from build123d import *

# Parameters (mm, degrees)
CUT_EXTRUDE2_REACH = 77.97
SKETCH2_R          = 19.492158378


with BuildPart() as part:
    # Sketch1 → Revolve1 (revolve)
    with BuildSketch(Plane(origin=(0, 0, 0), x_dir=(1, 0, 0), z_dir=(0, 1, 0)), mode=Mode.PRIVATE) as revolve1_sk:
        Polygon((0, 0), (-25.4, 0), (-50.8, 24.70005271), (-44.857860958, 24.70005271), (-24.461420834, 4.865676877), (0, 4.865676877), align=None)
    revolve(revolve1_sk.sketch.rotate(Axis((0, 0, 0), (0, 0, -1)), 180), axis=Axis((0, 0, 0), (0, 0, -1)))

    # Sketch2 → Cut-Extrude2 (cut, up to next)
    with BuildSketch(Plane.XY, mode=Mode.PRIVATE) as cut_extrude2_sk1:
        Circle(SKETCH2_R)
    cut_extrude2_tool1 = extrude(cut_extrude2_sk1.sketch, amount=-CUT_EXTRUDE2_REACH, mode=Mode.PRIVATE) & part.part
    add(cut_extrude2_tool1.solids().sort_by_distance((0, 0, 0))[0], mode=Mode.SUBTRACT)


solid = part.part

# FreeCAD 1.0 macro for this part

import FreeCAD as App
import Part
import Sketcher
from FreeCAD import Vector
Q = App.Units.Quantity

doc = App.newDocument("Part")
body = doc.addObject("PartDesign::Body", "Body")

# Sketch on XZ plane
sketch1 = body.newObject("Sketcher::SketchObject", "Sketch")
sketch1.AttachmentSupport = (doc.getObject("XZ_Plane"), [""])
sketch1.MapMode = "FlatFace"
sketch1.addGeometry([
    Part.LineSegment(Vector(-25.4, 0, 0), Vector(0, 0, 0)),  # 0
    Part.LineSegment(Vector(0, 0, 0), Vector(0, -4.9, 0)),  # 1
    Part.LineSegment(Vector(0, -4.9, 0), Vector(-24.5, -4.9, 0)),  # 2
    Part.LineSegment(Vector(-24.5, -4.9, 0), Vector(-44.9, -24.7, 0)),  # 3
    Part.LineSegment(Vector(-44.9, -24.7, 0), Vector(-50.8, -24.7, 0)),  # 4
    Part.LineSegment(Vector(-50.8, -24.7, 0), Vector(-25.4, 0, 0)),  # 5
], False)
sketch1.addConstraint([
    Sketcher.Constraint("Coincident", 0, 2, 1, 1),
    Sketcher.Constraint("Coincident", 1, 2, 2, 1),
    Sketcher.Constraint("Coincident", 2, 2, 3, 1),
    Sketcher.Constraint("Coincident", 3, 2, 4, 1),
    Sketcher.Constraint("Coincident", 4, 2, 5, 1),
    Sketcher.Constraint("Coincident", 5, 2, 0, 1),
    Sketcher.Constraint("Horizontal", 0),
    Sketcher.Constraint("Vertical", 1),
    Sketcher.Constraint("Horizontal", 2),
    Sketcher.Constraint("Horizontal", 4),
    Sketcher.Constraint("Coincident", 0, 2, -1, 1),
    Sketcher.Constraint("Parallel", 3, 5),
    Sketcher.Constraint("DistanceX", 0, 1, 0, 2, Q("1 in")),
    Sketcher.Constraint("DistanceX", 4, 2, -1, 1, Q("2 in")),
    Sketcher.Constraint("DistanceX", 2, 2, 2, 1, Q("24.461421 mm")),
    Sketcher.Constraint("DistanceX", 4, 2, 4, 1, Q("5.942139 mm")),
    Sketcher.Constraint("Distance", 3, Q("28.450259 mm")),
])
revolution = body.newObject("PartDesign::Revolution", "Revolution")
revolution.Profile = sketch1
revolution.ReferenceAxis = (sketch1, ["V_Axis"])
revolution.Angle = 360

# Sketch on XY plane
sketch2 = body.newObject("Sketcher::SketchObject", "Sketch001")
sketch2.AttachmentSupport = (doc.getObject("XY_Plane"), [""])
sketch2.MapMode = "FlatFace"
sketch2.addGeometry(Part.Circle(Vector(0, 0, 0), Vector(0, 0, 1), 19), False)
sketch2.addConstraint([
    Sketcher.Constraint("Coincident", 0, 3, -1, 1),
    Sketcher.Constraint("Diameter", 0, Q("38.984317 mm")),
])
pocket1 = body.newObject("PartDesign::Pocket", "Pocket")
pocket1.Profile = sketch2
pocket1.Type = "UpToFirst"

doc.recompute()
